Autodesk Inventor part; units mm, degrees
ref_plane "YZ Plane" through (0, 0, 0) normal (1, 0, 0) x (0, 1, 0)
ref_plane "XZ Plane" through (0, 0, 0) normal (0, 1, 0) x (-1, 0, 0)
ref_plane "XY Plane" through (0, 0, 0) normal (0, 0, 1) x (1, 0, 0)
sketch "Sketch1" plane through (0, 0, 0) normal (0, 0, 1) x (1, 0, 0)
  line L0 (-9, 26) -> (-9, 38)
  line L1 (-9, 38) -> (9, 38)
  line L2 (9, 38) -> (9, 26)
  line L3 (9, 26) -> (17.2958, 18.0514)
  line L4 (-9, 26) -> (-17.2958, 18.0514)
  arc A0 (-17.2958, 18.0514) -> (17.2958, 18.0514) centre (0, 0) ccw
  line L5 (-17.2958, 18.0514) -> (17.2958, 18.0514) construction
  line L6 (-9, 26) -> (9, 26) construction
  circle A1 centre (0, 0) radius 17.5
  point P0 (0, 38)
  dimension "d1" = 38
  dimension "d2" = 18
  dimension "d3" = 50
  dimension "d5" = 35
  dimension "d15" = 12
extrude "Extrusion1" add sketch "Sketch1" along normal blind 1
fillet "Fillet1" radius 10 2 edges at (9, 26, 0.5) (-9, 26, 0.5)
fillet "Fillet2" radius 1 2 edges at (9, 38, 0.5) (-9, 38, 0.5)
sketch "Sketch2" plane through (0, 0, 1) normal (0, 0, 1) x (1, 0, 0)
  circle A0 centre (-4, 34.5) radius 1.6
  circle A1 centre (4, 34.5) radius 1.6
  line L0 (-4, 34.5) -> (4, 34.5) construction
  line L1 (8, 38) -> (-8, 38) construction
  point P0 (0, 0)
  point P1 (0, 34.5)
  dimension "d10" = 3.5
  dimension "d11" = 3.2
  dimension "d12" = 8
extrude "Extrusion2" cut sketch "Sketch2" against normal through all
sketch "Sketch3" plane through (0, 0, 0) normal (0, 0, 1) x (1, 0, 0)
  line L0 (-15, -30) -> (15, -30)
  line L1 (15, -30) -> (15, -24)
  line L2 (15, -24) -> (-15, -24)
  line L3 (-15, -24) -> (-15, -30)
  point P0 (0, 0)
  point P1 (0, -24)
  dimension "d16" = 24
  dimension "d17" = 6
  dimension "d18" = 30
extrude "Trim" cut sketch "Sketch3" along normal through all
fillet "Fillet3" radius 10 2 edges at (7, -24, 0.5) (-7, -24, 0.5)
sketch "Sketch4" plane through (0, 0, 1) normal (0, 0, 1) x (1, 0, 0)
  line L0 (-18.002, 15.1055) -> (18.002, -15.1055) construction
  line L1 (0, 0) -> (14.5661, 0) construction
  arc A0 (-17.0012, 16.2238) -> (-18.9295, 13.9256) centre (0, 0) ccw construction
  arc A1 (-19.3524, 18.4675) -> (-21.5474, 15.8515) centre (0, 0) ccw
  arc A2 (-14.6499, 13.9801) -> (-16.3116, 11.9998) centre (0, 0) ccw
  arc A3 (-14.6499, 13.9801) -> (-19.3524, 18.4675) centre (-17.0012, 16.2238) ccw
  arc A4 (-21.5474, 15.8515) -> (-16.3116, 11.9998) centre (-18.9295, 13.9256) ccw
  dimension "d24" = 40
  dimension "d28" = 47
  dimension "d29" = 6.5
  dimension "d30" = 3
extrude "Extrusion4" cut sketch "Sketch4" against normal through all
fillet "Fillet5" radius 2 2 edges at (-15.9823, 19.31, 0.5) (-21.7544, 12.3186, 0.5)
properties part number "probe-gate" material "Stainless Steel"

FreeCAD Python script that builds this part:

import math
import FreeCAD as App
import Part
import Sketcher
from FreeCAD import Vector
Q = App.Units.Quantity


def edges_at(feature, points):
    """Names of the edges that pass closest to the given points."""
    edges = feature.Shape.Edges
    near = lambda p: min(range(len(edges)), key=lambda i: edges[i].distToShape(Part.Vertex(*p))[0])
    return sorted({f"Edge{near(p) + 1}" for p in points})

doc = App.newDocument("Part")
params = doc.addObject("Spreadsheet::Sheet", "Params")
for row, (alias, value) in enumerate([
    ("sketch1_diameter", "35 mm"),
    ("sketch1_radius", "25 mm"),
    ("sketch1_width", "18 mm"),
    ("sketch1_height", "12 mm"),
    ("pad1_length", "1 mm"),
    ("fillet_radius", "10 mm"),
    ("fillet2_radius", "1 mm"),
    ("sketch2_diameter", "3.2 mm"),
    ("sketch3_width", "30 mm"),
    ("sketch3_height", "6 mm"),
    ("fillet3_radius", "10 mm"),
    ("sketch4_radius", "3.25 mm"),
    ("fillet4_radius", "2 mm"),
], start=1):
    params.set(f"A{row}", alias)
    params.set(f"B{row}", "=" + value)
    params.setAlias(f"B{row}", alias)

body = doc.addObject("PartDesign::Body", "Body")

# Sketch on XY plane
sketch1 = doc.addObject("Sketcher::SketchObject", "Sketch")
body.addObject(sketch1)
sketch1.AttachmentSupport = (doc.XY_Plane, [""])
sketch1.MapMode = "FlatFace"
sketch1.addGeometry(Part.LineSegment(Vector(-9, 38, 0), Vector(-9, 26, 0)), False)
sketch1.addGeometry(Part.LineSegment(Vector(-9, 26, 0), Vector(-17.2958, 18.0514, 0)), False)
sketch1.addGeometry(Part.ArcOfCircle(Part.Circle(Vector(0, 0, 0), Vector(0, 0, 1), 24.999955), math.radians(133.775402), math.radians(406.224598)), False)
sketch1.addGeometry(Part.LineSegment(Vector(17.2958, 18.0514, 0), Vector(9, 26, 0)), False)
sketch1.addGeometry(Part.LineSegment(Vector(9, 26, 0), Vector(9, 38, 0)), False)
sketch1.addGeometry(Part.LineSegment(Vector(9, 38, 0), Vector(-9, 38, 0)), False)
sketch1.addGeometry(Part.Circle(Vector(0, 0, 0), Vector(0, 0, 1), 17.5), False)
sketch1.addConstraint(Sketcher.Constraint("Coincident", 0, 2, 1, 1))
sketch1.addConstraint(Sketcher.Constraint("Tangent", 1, 2, 2, 1))
sketch1.addConstraint(Sketcher.Constraint("Tangent", 2, 2, 3, 1))
sketch1.addConstraint(Sketcher.Constraint("Coincident", 3, 2, 4, 1))
sketch1.addConstraint(Sketcher.Constraint("Coincident", 4, 2, 5, 1))
sketch1.addConstraint(Sketcher.Constraint("Coincident", 5, 2, 0, 1))
sketch1.addConstraint(Sketcher.Constraint("Vertical", 0))
sketch1.addConstraint(Sketcher.Constraint("Vertical", 4))
sketch1.addConstraint(Sketcher.Constraint("Horizontal", 5))
sketch1.addConstraint(Sketcher.Constraint("Coincident", 2, 3, -1, 1))
sketch1.addConstraint(Sketcher.Constraint("Coincident", 6, 3, -1, 1))
sketch1.addConstraint(Sketcher.Constraint("Symmetric", 0, 2, 3, 2, -2))
sketch1.addConstraint(Sketcher.Constraint("Diameter", 6, Q("35 mm")))
sketch1.addConstraint(Sketcher.Constraint("Radius", 2, Q("25 mm")))
sketch1.addConstraint(Sketcher.Constraint("DistanceX", 5, 2, 5, 1, Q("18 mm")))
sketch1.addConstraint(Sketcher.Constraint("DistanceY", 0, 2, 0, 1, Q("12 mm")))
sketch1.addConstraint(Sketcher.Constraint("DistanceY", -1, 1, 4, 2, Q("38 mm")))
sketch1.setExpression("Constraints[12]", "Params.sketch1_diameter")
sketch1.setExpression("Constraints[13]", "Params.sketch1_radius")
sketch1.setExpression("Constraints[14]", "Params.sketch1_width")
sketch1.setExpression("Constraints[15]", "Params.sketch1_height")
pad1 = doc.addObject("PartDesign::Pad", "Pad")
body.addObject(pad1)
pad1.Profile = sketch1
pad1.setExpression("Length", "Params.pad1_length")
doc.recompute()

fillet = doc.addObject("PartDesign::Fillet", "Fillet")
body.addObject(fillet)
fillet.Base = (pad1, edges_at(pad1, [(9, 26, 0.5), (-9, 26, 0.5)]))
fillet.setExpression("Radius", "Params.fillet_radius")
doc.recompute()

fillet2 = doc.addObject("PartDesign::Fillet", "Fillet001")
body.addObject(fillet2)
fillet2.Base = (fillet, edges_at(fillet, [(9, 38, 0.5), (-9, 38, 0.5)]))
fillet2.setExpression("Radius", "Params.fillet2_radius")

# Sketch on XY plane
sketch2 = doc.addObject("Sketcher::SketchObject", "Sketch001")
body.addObject(sketch2)
sketch2.AttachmentSupport = (doc.XY_Plane, [""])
sketch2.MapMode = "FlatFace"
sketch2.AttachmentOffset = App.Placement(Vector(0, 0, 1), App.Rotation())
sketch2.addGeometry(Part.Circle(Vector(-4, 34.5, 0), Vector(0, 0, 1), 1.6), False)
sketch2.addGeometry(Part.Circle(Vector(4, 34.5, 0), Vector(0, 0, 1), 1.6), False)
sketch2.addConstraint(Sketcher.Constraint("Equal", 0, 1))
sketch2.addConstraint(Sketcher.Constraint("Symmetric", 0, 3, 1, 3, -2))
sketch2.addConstraint(Sketcher.Constraint("Diameter", 0, Q("3.2 mm")))
sketch2.addConstraint(Sketcher.Constraint("DistanceX", 0, 3, 1, 3, Q("8 mm")))
sketch2.addConstraint(Sketcher.Constraint("DistanceY", -1, 1, 0, 3, Q("34.5 mm")))
sketch2.setExpression("Constraints[2]", "Params.sketch2_diameter")
pocket1 = doc.addObject("PartDesign::Pocket", "Pocket")
body.addObject(pocket1)
pocket1.Profile = sketch2
pocket1.Type = "ThroughAll"

# Sketch on XY plane
sketch3 = doc.addObject("Sketcher::SketchObject", "Sketch002")
body.addObject(sketch3)
sketch3.AttachmentSupport = (doc.XY_Plane, [""])
sketch3.MapMode = "FlatFace"
sketch3.addGeometry(Part.LineSegment(Vector(-15, -24, 0), Vector(-15, -30, 0)), False)
sketch3.addGeometry(Part.LineSegment(Vector(-15, -30, 0), Vector(15, -30, 0)), False)
sketch3.addGeometry(Part.LineSegment(Vector(15, -30, 0), Vector(15, -24, 0)), False)
sketch3.addGeometry(Part.LineSegment(Vector(15, -24, 0), Vector(-15, -24, 0)), False)
sketch3.addConstraint(Sketcher.Constraint("Coincident", 0, 2, 1, 1))
sketch3.addConstraint(Sketcher.Constraint("Coincident", 1, 2, 2, 1))
sketch3.addConstraint(Sketcher.Constraint("Coincident", 2, 2, 3, 1))
sketch3.addConstraint(Sketcher.Constraint("Coincident", 3, 2, 0, 1))
sketch3.addConstraint(Sketcher.Constraint("Vertical", 0))
sketch3.addConstraint(Sketcher.Constraint("Horizontal", 1))
sketch3.addConstraint(Sketcher.Constraint("Vertical", 2))
sketch3.addConstraint(Sketcher.Constraint("Horizontal", 3))
sketch3.addConstraint(Sketcher.Constraint("DistanceX", 1, 1, 1, 2, Q("30 mm")))
sketch3.addConstraint(Sketcher.Constraint("DistanceY", 0, 2, 0, 1, Q("6 mm")))
sketch3.addConstraint(Sketcher.Constraint("DistanceY", 0, 2, -1, 1, Q("30 mm")))
sketch3.addConstraint(Sketcher.Constraint("DistanceX", 0, 2, -1, 1, Q("15 mm")))
sketch3.setExpression("Constraints[8]", "Params.sketch3_width")
sketch3.setExpression("Constraints[9]", "Params.sketch3_height")
pocket2 = doc.addObject("PartDesign::Pocket", "Pocket001")
body.addObject(pocket2)
pocket2.Profile = sketch3
pocket2.Type = "ThroughAll"
pocket2.Reversed = True
doc.recompute()

fillet3 = doc.addObject("PartDesign::Fillet", "Fillet002")
body.addObject(fillet3)
fillet3.Base = (pocket2, edges_at(pocket2, [(7, -24, 0.5), (-7, -24, 0.5)]))
fillet3.setExpression("Radius", "Params.fillet3_radius")

# Sketch on XY plane
sketch4 = doc.addObject("Sketcher::SketchObject", "Sketch003")
body.addObject(sketch4)
sketch4.AttachmentSupport = (doc.XY_Plane, [""])
sketch4.MapMode = "FlatFace"
sketch4.AttachmentOffset = App.Placement(Vector(0, 0, 1), App.Rotation())
sketch4.addGeometry(Part.ArcOfCircle(Part.Circle(Vector(-17.0012, 16.2238, 0), Vector(0, 0, 1), 3.250046), math.radians(-43.658564), math.radians(136.340219)), False)
sketch4.addGeometry(Part.ArcOfCircle(Part.Circle(Vector(-0.011757, 0.010523, 0), Vector(0, 0, 1), 26.734257), math.radians(136.339267), math.radians(143.662908)), False)
sketch4.addGeometry(Part.ArcOfCircle(Part.Circle(Vector(-18.9295, 13.9256, 0), Vector(0, 0, 1), 3.249999), math.radians(143.659347), math.radians(323.660767)), False)
sketch4.addGeometry(Part.ArcOfCircle(Part.Circle(Vector(0.003289, -0.002944, 0), Vector(0, 0, 1), 20.254418), math.radians(136.340591), math.radians(143.658356)), False)
sketch4.addConstraint(Sketcher.Constraint("Tangent", 0, 2, 1, 1))
sketch4.addConstraint(Sketcher.Constraint("Tangent", 1, 2, 2, 1))
sketch4.addConstraint(Sketcher.Constraint("Tangent", 2, 2, 3, 2))
sketch4.addConstraint(Sketcher.Constraint("Tangent", 3, 1, 0, 1))
sketch4.addConstraint(Sketcher.Constraint("Equal", 0, 2))
sketch4.addConstraint(Sketcher.Constraint("Radius", 0, Q("3.25 mm")))
sketch4.addConstraint(Sketcher.Constraint("Radius", 1, Q("26.7343 mm")))
sketch4.addConstraint(Sketcher.Constraint("Radius", 3, Q("20.2544 mm")))
sketch4.addConstraint(Sketcher.Constraint("DistanceX", 3, 1, -1, 1, Q("14.65 mm")))
sketch4.addConstraint(Sketcher.Constraint("DistanceY", -1, 1, 3, 1, Q("13.98 mm")))
sketch4.addConstraint(Sketcher.Constraint("DistanceY", 3, 3, -1, 1, Q("0.003 mm")))
sketch4.addConstraint(Sketcher.Constraint("DistanceY", 1, 3, 2, 3, Q("13.915 mm")))
sketch4.setExpression("Constraints[5]", "Params.sketch4_radius")
pocket3 = doc.addObject("PartDesign::Pocket", "Pocket002")
body.addObject(pocket3)
pocket3.Profile = sketch4
pocket3.Type = "ThroughAll"
doc.recompute()

fillet4 = doc.addObject("PartDesign::Fillet", "Fillet003")
body.addObject(fillet4)
fillet4.Base = (pocket3, edges_at(pocket3, [(-15.982, 19.31, 0.5), (-21.754, 12.319, 0.5)]))
fillet4.setExpression("Radius", "Params.fillet4_radius")

doc.recompute()
